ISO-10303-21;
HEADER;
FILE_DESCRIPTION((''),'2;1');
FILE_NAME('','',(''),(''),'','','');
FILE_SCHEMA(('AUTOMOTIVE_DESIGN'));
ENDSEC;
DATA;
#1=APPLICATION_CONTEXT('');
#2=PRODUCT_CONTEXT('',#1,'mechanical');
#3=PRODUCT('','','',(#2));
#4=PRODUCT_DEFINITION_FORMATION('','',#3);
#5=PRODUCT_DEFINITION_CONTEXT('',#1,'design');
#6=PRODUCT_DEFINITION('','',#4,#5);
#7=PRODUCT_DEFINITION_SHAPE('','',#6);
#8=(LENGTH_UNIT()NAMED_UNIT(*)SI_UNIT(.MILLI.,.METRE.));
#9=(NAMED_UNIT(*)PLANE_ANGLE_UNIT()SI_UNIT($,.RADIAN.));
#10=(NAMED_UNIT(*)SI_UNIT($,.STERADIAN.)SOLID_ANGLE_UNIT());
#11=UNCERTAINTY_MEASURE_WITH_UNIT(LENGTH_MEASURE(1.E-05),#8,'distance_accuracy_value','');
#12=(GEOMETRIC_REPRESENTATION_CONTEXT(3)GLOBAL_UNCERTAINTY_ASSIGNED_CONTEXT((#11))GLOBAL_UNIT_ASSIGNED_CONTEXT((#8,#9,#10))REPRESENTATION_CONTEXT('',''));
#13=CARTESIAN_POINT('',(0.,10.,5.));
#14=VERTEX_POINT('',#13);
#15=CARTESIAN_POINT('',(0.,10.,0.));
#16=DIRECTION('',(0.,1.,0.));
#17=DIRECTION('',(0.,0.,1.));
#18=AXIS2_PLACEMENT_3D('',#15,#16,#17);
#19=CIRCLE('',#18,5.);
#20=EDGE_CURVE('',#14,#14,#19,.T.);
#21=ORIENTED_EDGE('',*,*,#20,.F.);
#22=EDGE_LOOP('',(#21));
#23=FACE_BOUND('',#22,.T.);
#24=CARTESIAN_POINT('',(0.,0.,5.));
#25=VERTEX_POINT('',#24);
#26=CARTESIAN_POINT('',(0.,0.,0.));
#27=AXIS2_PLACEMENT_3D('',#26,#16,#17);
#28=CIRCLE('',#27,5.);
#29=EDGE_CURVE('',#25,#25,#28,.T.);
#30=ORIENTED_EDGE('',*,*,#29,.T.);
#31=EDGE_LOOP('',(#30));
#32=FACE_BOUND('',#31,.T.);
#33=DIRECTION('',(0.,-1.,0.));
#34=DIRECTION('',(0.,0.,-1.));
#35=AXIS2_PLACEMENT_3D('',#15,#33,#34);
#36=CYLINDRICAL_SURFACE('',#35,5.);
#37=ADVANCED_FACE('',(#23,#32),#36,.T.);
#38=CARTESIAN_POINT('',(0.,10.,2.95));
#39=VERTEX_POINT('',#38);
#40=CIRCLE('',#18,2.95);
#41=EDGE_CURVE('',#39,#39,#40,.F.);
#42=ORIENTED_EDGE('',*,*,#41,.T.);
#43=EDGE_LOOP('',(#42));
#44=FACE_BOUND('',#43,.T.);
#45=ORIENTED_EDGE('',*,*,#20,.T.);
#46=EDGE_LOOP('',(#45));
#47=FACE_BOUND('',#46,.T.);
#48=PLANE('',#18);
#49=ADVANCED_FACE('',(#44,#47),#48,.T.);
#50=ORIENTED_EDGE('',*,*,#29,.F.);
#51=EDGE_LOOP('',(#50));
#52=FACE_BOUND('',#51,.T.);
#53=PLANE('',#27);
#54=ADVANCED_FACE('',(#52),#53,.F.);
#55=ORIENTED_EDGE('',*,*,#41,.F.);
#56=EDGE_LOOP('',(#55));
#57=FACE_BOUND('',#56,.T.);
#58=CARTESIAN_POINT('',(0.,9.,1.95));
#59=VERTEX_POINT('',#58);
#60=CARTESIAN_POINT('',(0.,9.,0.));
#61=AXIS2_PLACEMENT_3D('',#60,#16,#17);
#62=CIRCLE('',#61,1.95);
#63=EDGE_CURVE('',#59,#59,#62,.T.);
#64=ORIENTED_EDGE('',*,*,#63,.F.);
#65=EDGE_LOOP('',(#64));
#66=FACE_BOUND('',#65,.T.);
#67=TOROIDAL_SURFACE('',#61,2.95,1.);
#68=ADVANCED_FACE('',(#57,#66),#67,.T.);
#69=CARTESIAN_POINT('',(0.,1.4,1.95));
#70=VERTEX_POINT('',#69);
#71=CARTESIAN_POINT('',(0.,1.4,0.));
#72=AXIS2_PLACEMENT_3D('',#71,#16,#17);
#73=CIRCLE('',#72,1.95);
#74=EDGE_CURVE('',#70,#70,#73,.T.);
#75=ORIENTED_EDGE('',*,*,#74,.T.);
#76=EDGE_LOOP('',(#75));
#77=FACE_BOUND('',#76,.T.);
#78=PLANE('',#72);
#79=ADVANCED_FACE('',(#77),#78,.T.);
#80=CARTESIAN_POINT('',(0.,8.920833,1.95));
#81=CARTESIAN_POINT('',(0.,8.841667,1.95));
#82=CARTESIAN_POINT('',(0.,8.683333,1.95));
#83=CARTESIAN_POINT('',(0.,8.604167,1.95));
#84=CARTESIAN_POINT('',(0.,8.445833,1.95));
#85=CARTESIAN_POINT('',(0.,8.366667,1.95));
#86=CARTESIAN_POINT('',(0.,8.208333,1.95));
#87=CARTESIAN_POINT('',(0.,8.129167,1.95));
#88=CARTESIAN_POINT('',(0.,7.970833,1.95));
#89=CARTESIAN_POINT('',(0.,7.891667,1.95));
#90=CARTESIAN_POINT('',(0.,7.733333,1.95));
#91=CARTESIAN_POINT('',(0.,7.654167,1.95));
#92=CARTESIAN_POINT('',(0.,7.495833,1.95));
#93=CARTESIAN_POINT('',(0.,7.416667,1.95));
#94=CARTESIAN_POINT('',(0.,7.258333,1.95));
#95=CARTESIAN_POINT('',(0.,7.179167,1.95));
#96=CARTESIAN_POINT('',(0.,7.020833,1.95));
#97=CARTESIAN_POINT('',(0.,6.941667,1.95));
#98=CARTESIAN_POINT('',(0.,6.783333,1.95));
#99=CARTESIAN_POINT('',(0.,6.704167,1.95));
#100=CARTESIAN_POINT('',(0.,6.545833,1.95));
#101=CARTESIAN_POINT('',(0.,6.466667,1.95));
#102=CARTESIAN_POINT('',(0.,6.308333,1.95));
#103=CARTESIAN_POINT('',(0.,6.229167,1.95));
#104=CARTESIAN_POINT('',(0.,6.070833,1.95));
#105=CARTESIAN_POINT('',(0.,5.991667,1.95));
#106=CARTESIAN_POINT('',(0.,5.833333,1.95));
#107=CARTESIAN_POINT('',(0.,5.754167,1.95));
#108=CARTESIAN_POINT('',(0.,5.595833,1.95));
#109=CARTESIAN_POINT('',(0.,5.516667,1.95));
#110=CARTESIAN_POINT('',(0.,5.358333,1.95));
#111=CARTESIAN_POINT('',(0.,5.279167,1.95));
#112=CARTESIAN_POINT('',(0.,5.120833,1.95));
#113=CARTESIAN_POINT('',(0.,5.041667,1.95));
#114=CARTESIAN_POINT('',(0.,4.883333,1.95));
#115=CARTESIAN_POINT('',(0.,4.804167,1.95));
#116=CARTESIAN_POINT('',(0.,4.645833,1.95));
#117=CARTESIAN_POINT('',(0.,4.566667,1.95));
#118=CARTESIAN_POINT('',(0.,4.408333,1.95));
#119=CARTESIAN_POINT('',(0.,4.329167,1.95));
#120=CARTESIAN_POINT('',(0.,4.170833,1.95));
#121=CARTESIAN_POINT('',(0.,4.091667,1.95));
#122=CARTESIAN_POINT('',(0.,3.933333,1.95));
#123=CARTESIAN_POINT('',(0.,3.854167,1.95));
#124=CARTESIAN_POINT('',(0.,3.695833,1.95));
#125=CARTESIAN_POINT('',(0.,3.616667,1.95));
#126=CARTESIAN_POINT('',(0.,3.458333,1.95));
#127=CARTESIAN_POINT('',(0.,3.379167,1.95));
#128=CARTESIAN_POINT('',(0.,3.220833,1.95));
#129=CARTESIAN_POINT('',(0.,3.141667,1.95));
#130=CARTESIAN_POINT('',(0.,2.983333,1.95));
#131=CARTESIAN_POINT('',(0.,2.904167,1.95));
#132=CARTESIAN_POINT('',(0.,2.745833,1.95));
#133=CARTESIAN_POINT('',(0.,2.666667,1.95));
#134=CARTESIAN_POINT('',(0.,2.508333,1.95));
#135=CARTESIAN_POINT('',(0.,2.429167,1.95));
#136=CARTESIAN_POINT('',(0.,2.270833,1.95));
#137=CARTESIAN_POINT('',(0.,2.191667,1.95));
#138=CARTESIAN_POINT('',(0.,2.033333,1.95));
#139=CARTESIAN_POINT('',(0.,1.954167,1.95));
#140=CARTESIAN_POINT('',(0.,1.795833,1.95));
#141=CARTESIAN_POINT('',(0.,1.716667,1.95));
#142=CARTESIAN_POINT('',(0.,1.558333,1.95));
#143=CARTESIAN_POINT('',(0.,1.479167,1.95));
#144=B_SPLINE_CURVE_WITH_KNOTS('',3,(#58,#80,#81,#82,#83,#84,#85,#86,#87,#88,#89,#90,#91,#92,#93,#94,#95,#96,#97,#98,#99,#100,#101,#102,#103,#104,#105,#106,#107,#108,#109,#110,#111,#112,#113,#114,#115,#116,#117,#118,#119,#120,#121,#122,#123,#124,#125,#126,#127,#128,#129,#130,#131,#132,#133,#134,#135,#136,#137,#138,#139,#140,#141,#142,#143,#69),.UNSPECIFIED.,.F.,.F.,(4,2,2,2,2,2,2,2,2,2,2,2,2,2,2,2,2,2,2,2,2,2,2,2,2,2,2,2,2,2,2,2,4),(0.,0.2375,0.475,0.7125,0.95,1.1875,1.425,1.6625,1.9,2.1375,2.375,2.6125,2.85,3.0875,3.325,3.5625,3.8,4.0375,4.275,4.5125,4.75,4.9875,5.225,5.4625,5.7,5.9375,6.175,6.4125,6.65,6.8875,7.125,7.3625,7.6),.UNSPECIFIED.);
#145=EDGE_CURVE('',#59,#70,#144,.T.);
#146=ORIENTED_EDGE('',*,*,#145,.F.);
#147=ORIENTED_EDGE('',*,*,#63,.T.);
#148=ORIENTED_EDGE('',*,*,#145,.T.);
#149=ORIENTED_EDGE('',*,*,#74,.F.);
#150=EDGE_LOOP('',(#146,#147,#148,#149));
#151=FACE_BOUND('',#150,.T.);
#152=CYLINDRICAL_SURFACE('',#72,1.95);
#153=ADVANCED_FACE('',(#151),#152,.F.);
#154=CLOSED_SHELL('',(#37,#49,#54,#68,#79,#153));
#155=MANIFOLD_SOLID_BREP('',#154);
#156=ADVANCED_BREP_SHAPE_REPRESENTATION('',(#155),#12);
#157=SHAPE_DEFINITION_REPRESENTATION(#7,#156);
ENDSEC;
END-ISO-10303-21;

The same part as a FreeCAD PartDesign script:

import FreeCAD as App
import Part
import Sketcher
from FreeCAD import Vector
Q = App.Units.Quantity


def edges_at(feature, points):
    """Names of the edges that pass closest to the given points."""
    edges = feature.Shape.Edges
    near = lambda p: min(range(len(edges)), key=lambda i: edges[i].distToShape(Part.Vertex(*p))[0])
    return sorted({f"Edge{near(p) + 1}" for p in points})

doc = App.newDocument("Part")
body = doc.addObject("PartDesign::Body", "Body")

# Sketch on XZ plane
sketch1 = body.newObject("Sketcher::SketchObject", "Sketch")
sketch1.AttachmentSupport = (doc.getObject("XZ_Plane"), [""])
sketch1.MapMode = "FlatFace"
sketch1.addGeometry(Part.Circle(Vector(0, 0, 0), Vector(0, 0, 1), 5), False)
sketch1.addConstraint([
    Sketcher.Constraint("Coincident", 0, 3, -1, 1),
    Sketcher.Constraint("Diameter", 0, Q("10 mm")),
])
pad1 = body.newObject("PartDesign::Pad", "Pad")
pad1.Profile = sketch1
pad1.Length = 10
pad1.Reversed = True

# Sketch on XZ plane
sketch2 = body.newObject("Sketcher::SketchObject", "Sketch001")
sketch2.AttachmentSupport = (doc.getObject("XZ_Plane"), [""])
sketch2.MapMode = "FlatFace"
sketch2.AttachmentOffset = App.Placement(Vector(0, 0, -10), App.Rotation())
sketch2.addGeometry(Part.Circle(Vector(0, 0, 0), Vector(0, 0, 1), 1.9), False)
sketch2.addConstraint([
    Sketcher.Constraint("Coincident", 0, 3, -1, 1),
    Sketcher.Constraint("Diameter", 0, Q("3.9 mm")),
])
pocket1 = body.newObject("PartDesign::Pocket", "Pocket")
pocket1.Profile = sketch2
pocket1.Length = 8.6
pocket1.Reversed = True
doc.recompute()

fillet = body.newObject("PartDesign::Fillet", "Fillet")
fillet.Base = (pocket1, edges_at(pocket1, [(0, 10, -1.95)]))
fillet.Radius = 1

doc.recompute()
